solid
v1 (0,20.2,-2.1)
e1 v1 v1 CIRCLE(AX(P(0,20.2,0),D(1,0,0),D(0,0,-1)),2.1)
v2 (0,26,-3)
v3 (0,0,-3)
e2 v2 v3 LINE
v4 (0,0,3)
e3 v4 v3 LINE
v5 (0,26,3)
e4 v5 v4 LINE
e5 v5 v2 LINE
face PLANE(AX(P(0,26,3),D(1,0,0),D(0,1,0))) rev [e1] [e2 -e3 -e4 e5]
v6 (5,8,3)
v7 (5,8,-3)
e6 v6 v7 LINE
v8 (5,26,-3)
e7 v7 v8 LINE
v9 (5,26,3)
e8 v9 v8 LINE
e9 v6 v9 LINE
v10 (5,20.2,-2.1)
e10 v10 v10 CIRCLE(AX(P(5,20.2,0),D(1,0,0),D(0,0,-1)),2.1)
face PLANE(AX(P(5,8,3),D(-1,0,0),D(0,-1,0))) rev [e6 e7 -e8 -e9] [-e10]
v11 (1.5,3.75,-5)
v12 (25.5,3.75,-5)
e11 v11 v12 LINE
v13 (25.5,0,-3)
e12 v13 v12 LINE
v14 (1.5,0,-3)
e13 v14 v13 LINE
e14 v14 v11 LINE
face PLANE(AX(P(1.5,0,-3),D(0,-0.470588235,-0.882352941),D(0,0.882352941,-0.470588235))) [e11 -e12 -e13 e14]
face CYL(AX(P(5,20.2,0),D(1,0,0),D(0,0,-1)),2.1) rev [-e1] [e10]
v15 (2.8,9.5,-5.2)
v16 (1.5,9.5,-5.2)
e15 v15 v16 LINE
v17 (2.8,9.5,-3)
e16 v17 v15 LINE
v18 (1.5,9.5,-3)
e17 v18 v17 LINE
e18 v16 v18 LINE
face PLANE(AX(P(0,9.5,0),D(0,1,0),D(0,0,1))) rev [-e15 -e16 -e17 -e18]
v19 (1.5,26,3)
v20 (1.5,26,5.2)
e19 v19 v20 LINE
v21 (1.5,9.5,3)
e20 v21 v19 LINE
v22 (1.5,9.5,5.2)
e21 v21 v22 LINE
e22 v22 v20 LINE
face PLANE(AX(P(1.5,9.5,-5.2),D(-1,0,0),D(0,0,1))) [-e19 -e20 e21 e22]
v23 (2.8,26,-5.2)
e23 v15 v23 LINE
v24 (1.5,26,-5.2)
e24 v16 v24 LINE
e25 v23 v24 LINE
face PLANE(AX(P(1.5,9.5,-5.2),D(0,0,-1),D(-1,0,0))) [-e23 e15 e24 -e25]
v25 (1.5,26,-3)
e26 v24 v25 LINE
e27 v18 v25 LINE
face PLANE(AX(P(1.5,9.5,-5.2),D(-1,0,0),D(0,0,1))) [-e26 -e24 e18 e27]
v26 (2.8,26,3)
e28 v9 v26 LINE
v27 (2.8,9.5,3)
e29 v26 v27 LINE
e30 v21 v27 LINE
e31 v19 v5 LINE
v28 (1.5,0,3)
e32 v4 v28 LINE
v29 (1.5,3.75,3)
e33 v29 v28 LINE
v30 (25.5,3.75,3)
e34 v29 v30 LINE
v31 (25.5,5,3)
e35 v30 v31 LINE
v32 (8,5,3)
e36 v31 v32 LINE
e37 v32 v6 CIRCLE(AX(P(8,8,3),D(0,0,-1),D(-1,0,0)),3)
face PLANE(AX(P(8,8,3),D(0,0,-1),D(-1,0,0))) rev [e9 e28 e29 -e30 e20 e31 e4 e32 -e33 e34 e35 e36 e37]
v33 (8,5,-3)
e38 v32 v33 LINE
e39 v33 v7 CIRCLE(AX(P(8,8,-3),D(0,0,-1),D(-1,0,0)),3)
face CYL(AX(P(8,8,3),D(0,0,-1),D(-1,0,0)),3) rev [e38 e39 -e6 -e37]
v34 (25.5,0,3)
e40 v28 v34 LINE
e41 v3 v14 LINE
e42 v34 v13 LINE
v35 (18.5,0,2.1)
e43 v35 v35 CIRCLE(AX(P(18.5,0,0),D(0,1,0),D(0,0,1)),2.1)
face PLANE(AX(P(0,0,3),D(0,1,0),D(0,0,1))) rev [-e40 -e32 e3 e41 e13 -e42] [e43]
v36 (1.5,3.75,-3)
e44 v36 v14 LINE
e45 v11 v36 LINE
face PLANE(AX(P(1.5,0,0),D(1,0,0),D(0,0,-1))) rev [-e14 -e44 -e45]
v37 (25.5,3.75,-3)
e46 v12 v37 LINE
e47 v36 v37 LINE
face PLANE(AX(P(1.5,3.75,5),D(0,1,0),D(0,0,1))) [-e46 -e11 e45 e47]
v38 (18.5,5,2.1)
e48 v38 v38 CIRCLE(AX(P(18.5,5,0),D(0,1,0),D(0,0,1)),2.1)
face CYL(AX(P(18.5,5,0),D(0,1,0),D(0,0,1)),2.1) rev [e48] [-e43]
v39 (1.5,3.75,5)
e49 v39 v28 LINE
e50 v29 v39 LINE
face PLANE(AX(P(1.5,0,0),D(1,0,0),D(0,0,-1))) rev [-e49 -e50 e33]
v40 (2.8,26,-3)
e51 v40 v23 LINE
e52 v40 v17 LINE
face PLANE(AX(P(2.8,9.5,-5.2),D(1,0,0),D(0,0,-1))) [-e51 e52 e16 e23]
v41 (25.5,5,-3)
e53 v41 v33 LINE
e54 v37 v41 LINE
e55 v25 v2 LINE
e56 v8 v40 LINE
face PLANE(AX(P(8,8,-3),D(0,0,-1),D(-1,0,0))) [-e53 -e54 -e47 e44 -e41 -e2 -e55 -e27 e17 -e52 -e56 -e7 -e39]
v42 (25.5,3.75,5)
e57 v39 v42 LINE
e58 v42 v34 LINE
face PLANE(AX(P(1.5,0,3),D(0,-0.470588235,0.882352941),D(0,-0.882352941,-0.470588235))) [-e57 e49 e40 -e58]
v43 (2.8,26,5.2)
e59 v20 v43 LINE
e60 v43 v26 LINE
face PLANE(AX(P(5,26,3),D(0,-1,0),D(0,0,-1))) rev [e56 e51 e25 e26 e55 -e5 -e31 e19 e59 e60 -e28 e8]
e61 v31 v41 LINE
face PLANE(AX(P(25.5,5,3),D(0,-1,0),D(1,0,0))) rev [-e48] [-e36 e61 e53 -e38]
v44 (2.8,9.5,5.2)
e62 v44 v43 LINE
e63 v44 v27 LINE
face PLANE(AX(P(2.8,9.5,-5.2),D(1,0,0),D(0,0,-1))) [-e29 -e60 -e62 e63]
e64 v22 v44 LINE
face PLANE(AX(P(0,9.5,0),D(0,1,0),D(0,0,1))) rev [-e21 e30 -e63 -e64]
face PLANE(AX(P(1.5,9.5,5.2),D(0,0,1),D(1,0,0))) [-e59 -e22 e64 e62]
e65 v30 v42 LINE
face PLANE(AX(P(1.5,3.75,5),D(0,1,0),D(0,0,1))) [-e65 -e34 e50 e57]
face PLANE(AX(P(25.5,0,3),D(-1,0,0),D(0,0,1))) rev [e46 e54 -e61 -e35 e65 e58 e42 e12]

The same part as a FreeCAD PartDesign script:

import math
import FreeCAD as App
import Part
import Sketcher

V = App.Vector


def add_polygon(sketch, points):
    """Adds a closed chain of lines whose ends are joined by coincident constraints."""
    first, n = sketch.GeometryCount, len(points)
    for a, b in zip(points, points[1:] + points[:1]):
        sketch.addGeometry(Part.LineSegment(App.Vector(*a, 0), App.Vector(*b, 0)), False)
    for i in range(n):
        sketch.addConstraint(Sketcher.Constraint("Coincident", first + i, 2, first + (i + 1) % n, 1))

doc = App.newDocument("Part")
body = doc.addObject("PartDesign::Body", "Body")

sketch1 = doc.addObject("Sketcher::SketchObject", "Sketch")
body.addObject(sketch1)
sketch1.AttachmentSupport = (doc.XY_Plane, [""])
sketch1.MapMode = "FlatFace"
sketch1.addGeometry([
    Part.LineSegment(V(0, 26, 0), V(0, 0, 0)),
    Part.LineSegment(V(0, 0, 0), V(25.5, 0, 0)),
    Part.LineSegment(V(25.5, 0, 0), V(25.5, 5, 0)),
    Part.LineSegment(V(25.5, 5, 0), V(8, 5, 0)),
    Part.ArcOfCircle(Part.Circle(V(8, 8, 0), V(0, 0, 1), 3), math.radians(180), math.radians(270)),
    Part.LineSegment(V(5, 8, 0), V(5, 26, 0)),
    Part.LineSegment(V(5, 26, 0), V(0, 26, 0)),
], False)
sketch1.addConstraint([
    Sketcher.Constraint("Coincident", 0, 2, 1, 1),
    Sketcher.Constraint("Coincident", 1, 2, 2, 1),
    Sketcher.Constraint("Coincident", 2, 2, 3, 1),
    Sketcher.Constraint("Tangent", 3, 2, 4, 2),
    Sketcher.Constraint("Tangent", 4, 1, 5, 1),
    Sketcher.Constraint("Coincident", 5, 2, 6, 1),
    Sketcher.Constraint("Coincident", 6, 2, 0, 1),
    Sketcher.Constraint("Vertical", 0),
    Sketcher.Constraint("Horizontal", 1),
    Sketcher.Constraint("Vertical", 2),
    Sketcher.Constraint("Horizontal", 3),
    Sketcher.Constraint("Vertical", 5),
    Sketcher.Constraint("Horizontal", 6),
    Sketcher.Constraint("Coincident", 0, 2, -1, 1),
    Sketcher.Constraint("Equal", 6, 2),
    Sketcher.Constraint("Radius", 4, 3.0),
    Sketcher.Constraint("DistanceX", 6, 2, 6, 1, 5.0),
    Sketcher.Constraint("DistanceY", 0, 2, 0, 1, 26.0),
    Sketcher.Constraint("DistanceX", 1, 1, 1, 2, 25.5),
])
pad1 = doc.addObject("PartDesign::Pad", "Pad")
body.addObject(pad1)
pad1.Profile = sketch1
pad1.Length = 6
pad1.Midplane = True

sketch2 = doc.addObject("Sketcher::SketchObject", "Sketch001")
body.addObject(sketch2)
sketch2.AttachmentSupport = (doc.YZ_Plane, [""])
sketch2.MapMode = "FlatFace"
sketch2.AttachmentOffset = App.Placement(V(0, 0, 25.5), App.Rotation())
add_polygon(sketch2, [(3.8, 5), (0, 3), (0, -3), (3.8, -5)])
sketch2.addConstraint([
    Sketcher.Constraint("Vertical", 1),
    Sketcher.Constraint("Vertical", 3),
    Sketcher.Constraint("Symmetric", 0, 2, 1, 2, -1, 1),
    Sketcher.Constraint("Equal", 0, 2),
    Sketcher.Constraint("DistanceY", 1, 2, 1, 1, 6.0),
    Sketcher.Constraint("DistanceY", 3, 1, 3, 2, 10.0),
    Sketcher.Constraint("Distance", 0, 4.25),
])
pad2 = doc.addObject("PartDesign::Pad", "Pad001")
body.addObject(pad2)
pad2.Profile = sketch2
pad2.Length = 24
pad2.Reversed = True

sketch3 = doc.addObject("Sketcher::SketchObject", "Sketch002")
body.addObject(sketch3)
sketch3.AttachmentSupport = (doc.XZ_Plane, [""])
sketch3.MapMode = "FlatFace"
sketch3.AttachmentOffset = App.Placement(V(0, 0, -26), App.Rotation())
add_polygon(sketch3, [(1.5, -5.2), (1.5, 5.2), (2.8, 5.2), (2.8, -5.2)])
sketch3.addConstraint([
    Sketcher.Constraint("Vertical", 0),
    Sketcher.Constraint("Horizontal", 1),
    Sketcher.Constraint("Vertical", 2),
    Sketcher.Constraint("Horizontal", 3),
    Sketcher.Constraint("DistanceX", 1, 1, 1, 2, 1.3),
    Sketcher.Constraint("DistanceY", 0, 1, 0, 2, 10.4),
    Sketcher.Constraint("DistanceX", -1, 1, 0, 2, 1.5),
    Sketcher.Constraint("DistanceY", -1, 1, 0, 2, 5.2),
])
pad3 = doc.addObject("PartDesign::Pad", "Pad002")
body.addObject(pad3)
pad3.Profile = sketch3
pad3.Length = 16.5

sketch4 = doc.addObject("Sketcher::SketchObject", "Sketch003")
body.addObject(sketch4)
sketch4.AttachmentSupport = (doc.XZ_Plane, [""])
sketch4.MapMode = "FlatFace"
sketch4.AttachmentOffset = App.Placement(V(0, 0, -5), App.Rotation())
sketch4.addGeometry(Part.Circle(V(18.5, 0, 0), V(0, 0, 1), 2.1), False)
sketch4.addConstraint([
    Sketcher.Constraint("PointOnObject", 0, 3, -1),
    Sketcher.Constraint("Diameter", 0, 4.2),
    Sketcher.Constraint("DistanceX", -1, 1, 0, 3, 18.5),
])
doc.recompute()
hole = doc.addObject("PartDesign::Hole", "Hole")
body.addObject(hole)
hole.Profile = sketch4
hole.ThreadType = "None"
hole.Diameter = 4.2
hole.DepthType = "ThroughAll"
hole.Reversed = True

sketch5 = doc.addObject("Sketcher::SketchObject", "Sketch004")
body.addObject(sketch5)
sketch5.AttachmentSupport = (doc.YZ_Plane, [""])
sketch5.MapMode = "FlatFace"
sketch5.AttachmentOffset = App.Placement(V(0, 0, 5), App.Rotation())
sketch5.addGeometry(Part.Circle(V(20.2, 0, 0), V(0, 0, 1), 2.1), False)
sketch5.addConstraint([
    Sketcher.Constraint("PointOnObject", 0, 3, -1),
    Sketcher.Constraint("Diameter", 0, 4.2),
    Sketcher.Constraint("DistanceX", -1, 1, 0, 3, 20.2),
])
doc.recompute()
hole2 = doc.addObject("PartDesign::Hole", "Hole001")
body.addObject(hole2)
hole2.Profile = sketch5
hole2.ThreadType = "None"
hole2.Diameter = 4.2
hole2.DepthType = "ThroughAll"

doc.recompute()
